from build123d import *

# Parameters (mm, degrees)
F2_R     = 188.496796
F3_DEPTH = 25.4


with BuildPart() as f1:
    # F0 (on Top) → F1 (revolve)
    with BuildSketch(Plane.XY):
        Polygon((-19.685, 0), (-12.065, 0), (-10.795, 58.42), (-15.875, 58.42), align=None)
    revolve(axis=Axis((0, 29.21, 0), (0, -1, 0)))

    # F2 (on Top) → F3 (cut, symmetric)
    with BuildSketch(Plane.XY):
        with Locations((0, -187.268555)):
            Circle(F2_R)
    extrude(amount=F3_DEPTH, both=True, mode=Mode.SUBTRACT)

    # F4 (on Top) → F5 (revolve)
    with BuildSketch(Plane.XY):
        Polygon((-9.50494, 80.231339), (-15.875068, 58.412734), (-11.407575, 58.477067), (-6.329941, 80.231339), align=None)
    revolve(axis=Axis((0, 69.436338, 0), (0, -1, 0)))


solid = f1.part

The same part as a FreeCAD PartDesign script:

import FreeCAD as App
import Part
import Sketcher
Q = App.Units.Quantity

doc = App.newDocument("Part")
body = doc.addObject("PartDesign::Body", "Body")

# Sketch on XY plane
sketch1 = body.newObject("Sketcher::SketchObject", "Sketch")
sketch1.AttachmentSupport = (doc.getObject("XY_Plane"), [""])
sketch1.MapMode = "FlatFace"
sketch1.addGeometry([
    Part.LineSegment(App.Vector(-20, 0, 0), App.Vector(-12, 0, 0)),
    Part.LineSegment(App.Vector(-12, 0, 0), App.Vector(-11, 58, 0)),
    Part.LineSegment(App.Vector(-11, 58, 0), App.Vector(-16, 58, 0)),
    Part.LineSegment(App.Vector(-16, 58, 0), App.Vector(-20, 0, 0)),
], False)
sketch1.addConstraint([
    Sketcher.Constraint("Coincident", 0, 2, 1, 1),
    Sketcher.Constraint("Coincident", 1, 2, 2, 1),
    Sketcher.Constraint("Coincident", 2, 2, 3, 1),
    Sketcher.Constraint("Coincident", 3, 2, 0, 1),
    Sketcher.Constraint("Horizontal", 0),
    Sketcher.Constraint("Horizontal", 2),
    Sketcher.Constraint("PointOnObject", 0, 2, -1),
    Sketcher.Constraint("DistanceX", 0, 1, 0, 2, Q("0.3 in")),
    Sketcher.Constraint("DistanceX", 2, 2, 2, 1, Q("0.2 in")),
    Sketcher.Constraint("DistanceY", -1, 1, 1, 2, Q("2.3 in")),
    Sketcher.Constraint("DistanceX", 0, 2, 1, 2, Q("0.05 in")),
    Sketcher.Constraint("DistanceX", 0, 2, -1, 1, Q("0.475 in")),
])
revolution = body.newObject("PartDesign::Revolution", "Revolution")
revolution.Profile = sketch1
revolution.ReferenceAxis = (sketch1, ["V_Axis"])
revolution.Angle = 360

# Sketch on XY plane
sketch2 = body.newObject("Sketcher::SketchObject", "Sketch001")
sketch2.AttachmentSupport = (doc.getObject("XY_Plane"), [""])
sketch2.MapMode = "FlatFace"
sketch2.addGeometry(Part.Circle(App.Vector(0, -187, 0), App.Vector(0, 0, 1), 188), False)
sketch2.addConstraint([
    Sketcher.Constraint("PointOnObject", 0, 3, -2),
    Sketcher.Constraint("Diameter", 0, Q("376.993592 mm")),
    Sketcher.Constraint("DistanceY", 0, 3, -1, 1, Q("187.268555 mm")),
])
pocket1 = body.newObject("PartDesign::Pocket", "Pocket")
pocket1.Profile = sketch2
pocket1.Length = Q("2 in")
pocket1.Midplane = True

# Sketch on XY plane
sketch3 = body.newObject("Sketcher::SketchObject", "Sketch002")
sketch3.AttachmentSupport = (doc.getObject("XY_Plane"), [""])
sketch3.MapMode = "FlatFace"
sketch3.addGeometry([
    Part.LineSegment(App.Vector(-9.5, 80.2, 0), App.Vector(-15.9, 58.4, 0)),
    Part.LineSegment(App.Vector(-15.9, 58.4, 0), App.Vector(-11.4, 58.5, 0)),
    Part.LineSegment(App.Vector(-11.4, 58.5, 0), App.Vector(-6.3, 80.2, 0)),
    Part.LineSegment(App.Vector(-6.3, 80.2, 0), App.Vector(-9.5, 80.2, 0)),
], False)
sketch3.addConstraint([
    Sketcher.Constraint("Coincident", 0, 2, 1, 1),
    Sketcher.Constraint("Coincident", 1, 2, 2, 1),
    Sketcher.Constraint("Coincident", 2, 2, 3, 1),
    Sketcher.Constraint("Coincident", 3, 2, 0, 1),
    Sketcher.Constraint("Horizontal", 3),
    Sketcher.Constraint("DistanceX", 3, 2, 3, 1, Q("0.125 in")),
    Sketcher.Constraint("DistanceY", 0, 2, 2, 2, Q("0.8590002 in")),
    Sketcher.Constraint("DistanceX", 0, 2, -1, 1, Q("15.875068 mm")),
    Sketcher.Constraint("DistanceX", 2, 2, -1, 1, Q("6.329941 mm")),
    Sketcher.Constraint("DistanceY", -1, 1, 2, 2, Q("80.231339 mm")),
    Sketcher.Constraint("Distance", 1, Q("4.467956 mm")),
    Sketcher.Constraint("Distance", 2, Q("22.338995 mm")),
])
revolution2 = body.newObject("PartDesign::Revolution", "Revolution001")
revolution2.Profile = sketch3
revolution2.ReferenceAxis = (sketch3, ["V_Axis"])
revolution2.Angle = 360

doc.recompute()
